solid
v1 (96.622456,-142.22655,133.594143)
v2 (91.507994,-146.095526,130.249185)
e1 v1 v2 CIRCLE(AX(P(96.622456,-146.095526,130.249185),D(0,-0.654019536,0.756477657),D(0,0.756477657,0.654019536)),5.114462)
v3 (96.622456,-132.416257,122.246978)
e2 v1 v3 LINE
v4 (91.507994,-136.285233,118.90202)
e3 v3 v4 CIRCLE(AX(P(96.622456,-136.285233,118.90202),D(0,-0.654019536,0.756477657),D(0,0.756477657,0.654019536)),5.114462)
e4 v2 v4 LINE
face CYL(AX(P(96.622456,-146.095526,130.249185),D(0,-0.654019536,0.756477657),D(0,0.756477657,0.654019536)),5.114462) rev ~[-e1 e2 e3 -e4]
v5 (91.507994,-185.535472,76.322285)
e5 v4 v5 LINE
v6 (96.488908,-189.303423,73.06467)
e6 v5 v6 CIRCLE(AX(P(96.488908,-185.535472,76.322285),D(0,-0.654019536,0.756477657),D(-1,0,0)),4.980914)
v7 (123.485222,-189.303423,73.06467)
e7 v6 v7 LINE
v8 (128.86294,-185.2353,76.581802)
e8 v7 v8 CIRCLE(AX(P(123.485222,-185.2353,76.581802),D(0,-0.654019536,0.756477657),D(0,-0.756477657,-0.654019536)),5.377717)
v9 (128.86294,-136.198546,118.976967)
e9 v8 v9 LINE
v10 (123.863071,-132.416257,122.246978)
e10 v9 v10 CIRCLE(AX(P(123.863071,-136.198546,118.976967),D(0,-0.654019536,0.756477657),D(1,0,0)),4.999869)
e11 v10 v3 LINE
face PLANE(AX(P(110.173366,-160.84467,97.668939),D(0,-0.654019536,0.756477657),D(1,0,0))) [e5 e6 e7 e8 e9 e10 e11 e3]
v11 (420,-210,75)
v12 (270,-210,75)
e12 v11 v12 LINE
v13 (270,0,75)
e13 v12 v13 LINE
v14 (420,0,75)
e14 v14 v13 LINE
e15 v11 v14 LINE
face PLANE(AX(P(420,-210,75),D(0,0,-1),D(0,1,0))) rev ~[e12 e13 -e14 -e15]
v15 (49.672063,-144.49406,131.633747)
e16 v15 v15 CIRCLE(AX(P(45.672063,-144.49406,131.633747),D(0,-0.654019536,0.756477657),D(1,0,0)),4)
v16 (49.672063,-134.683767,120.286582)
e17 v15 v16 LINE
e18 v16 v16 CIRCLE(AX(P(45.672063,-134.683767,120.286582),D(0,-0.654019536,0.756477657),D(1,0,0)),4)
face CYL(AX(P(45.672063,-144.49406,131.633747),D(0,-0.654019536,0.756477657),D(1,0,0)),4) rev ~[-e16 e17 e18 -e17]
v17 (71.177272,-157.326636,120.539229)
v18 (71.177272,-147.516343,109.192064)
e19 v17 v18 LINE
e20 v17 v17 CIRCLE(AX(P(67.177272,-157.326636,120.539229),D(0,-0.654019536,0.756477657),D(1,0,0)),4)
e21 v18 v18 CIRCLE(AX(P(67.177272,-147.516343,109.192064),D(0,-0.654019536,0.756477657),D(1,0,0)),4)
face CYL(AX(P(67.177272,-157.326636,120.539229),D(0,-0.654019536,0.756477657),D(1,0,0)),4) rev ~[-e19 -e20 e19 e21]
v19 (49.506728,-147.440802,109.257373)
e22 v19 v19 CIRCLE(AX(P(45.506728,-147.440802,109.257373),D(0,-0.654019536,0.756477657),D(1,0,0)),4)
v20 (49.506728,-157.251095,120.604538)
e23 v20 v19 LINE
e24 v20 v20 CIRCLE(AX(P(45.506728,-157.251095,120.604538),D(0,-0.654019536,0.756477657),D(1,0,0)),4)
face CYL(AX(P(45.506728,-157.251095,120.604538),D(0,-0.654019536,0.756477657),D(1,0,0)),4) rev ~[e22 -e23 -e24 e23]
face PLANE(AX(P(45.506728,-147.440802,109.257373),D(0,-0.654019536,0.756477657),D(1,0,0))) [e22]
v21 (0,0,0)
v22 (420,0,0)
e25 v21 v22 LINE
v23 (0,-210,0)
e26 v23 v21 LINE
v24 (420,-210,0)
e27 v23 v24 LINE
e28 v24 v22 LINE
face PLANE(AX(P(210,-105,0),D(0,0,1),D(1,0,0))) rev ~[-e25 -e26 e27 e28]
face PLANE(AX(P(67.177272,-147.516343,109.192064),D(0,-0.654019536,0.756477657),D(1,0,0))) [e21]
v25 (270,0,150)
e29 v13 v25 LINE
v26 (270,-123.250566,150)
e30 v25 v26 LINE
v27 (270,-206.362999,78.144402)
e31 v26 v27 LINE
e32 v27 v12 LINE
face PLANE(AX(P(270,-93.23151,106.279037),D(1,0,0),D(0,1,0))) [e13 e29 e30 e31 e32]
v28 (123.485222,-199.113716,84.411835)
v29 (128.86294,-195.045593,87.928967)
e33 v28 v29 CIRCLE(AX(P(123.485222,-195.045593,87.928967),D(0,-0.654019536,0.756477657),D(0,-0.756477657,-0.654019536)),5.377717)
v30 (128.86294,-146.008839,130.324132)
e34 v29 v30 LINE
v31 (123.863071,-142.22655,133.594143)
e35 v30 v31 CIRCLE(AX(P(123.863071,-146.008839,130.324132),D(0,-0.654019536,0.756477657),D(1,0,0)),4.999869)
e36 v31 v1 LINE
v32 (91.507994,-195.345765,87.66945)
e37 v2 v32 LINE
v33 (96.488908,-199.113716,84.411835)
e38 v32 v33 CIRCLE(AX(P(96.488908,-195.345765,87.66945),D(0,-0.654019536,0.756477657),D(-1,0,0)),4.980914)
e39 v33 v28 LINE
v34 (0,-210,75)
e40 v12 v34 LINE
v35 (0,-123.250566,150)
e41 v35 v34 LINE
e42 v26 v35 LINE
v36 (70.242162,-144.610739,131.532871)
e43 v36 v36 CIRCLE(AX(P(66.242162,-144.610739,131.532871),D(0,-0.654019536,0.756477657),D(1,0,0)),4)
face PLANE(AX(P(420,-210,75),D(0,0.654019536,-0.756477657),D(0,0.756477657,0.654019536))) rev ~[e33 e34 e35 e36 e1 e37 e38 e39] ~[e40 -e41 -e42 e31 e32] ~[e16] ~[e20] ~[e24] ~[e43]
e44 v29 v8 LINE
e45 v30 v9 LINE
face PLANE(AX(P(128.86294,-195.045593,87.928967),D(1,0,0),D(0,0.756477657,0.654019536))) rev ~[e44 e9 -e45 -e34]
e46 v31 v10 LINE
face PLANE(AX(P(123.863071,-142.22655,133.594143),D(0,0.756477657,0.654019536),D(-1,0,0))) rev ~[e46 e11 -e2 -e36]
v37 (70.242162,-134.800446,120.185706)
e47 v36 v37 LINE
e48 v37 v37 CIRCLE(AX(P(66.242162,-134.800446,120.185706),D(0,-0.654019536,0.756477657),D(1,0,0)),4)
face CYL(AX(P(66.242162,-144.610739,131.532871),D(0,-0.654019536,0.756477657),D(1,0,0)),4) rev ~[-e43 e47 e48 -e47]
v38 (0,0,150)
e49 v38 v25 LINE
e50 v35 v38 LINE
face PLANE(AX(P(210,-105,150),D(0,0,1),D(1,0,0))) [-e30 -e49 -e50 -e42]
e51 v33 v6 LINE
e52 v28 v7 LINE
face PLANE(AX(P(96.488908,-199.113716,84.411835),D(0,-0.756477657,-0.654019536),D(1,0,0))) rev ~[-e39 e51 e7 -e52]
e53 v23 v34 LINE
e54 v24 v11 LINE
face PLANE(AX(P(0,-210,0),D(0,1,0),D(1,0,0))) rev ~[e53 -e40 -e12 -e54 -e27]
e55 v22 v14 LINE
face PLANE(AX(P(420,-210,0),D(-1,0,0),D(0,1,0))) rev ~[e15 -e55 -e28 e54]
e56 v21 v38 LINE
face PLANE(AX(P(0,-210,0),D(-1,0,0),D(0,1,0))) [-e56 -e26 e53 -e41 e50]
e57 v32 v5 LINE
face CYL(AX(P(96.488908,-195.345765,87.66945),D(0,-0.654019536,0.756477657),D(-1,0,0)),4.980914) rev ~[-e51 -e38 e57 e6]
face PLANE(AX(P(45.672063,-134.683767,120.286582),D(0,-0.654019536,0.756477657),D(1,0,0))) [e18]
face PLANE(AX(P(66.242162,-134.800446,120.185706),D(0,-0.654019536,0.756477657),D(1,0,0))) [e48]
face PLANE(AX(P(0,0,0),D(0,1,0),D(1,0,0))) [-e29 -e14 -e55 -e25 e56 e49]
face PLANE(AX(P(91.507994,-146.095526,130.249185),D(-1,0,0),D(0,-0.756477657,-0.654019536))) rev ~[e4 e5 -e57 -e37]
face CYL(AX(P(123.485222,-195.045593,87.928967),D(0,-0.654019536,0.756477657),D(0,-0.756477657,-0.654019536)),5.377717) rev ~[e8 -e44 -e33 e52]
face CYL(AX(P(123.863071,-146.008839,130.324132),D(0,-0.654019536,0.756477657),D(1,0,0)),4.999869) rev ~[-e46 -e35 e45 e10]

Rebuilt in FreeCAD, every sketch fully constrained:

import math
import FreeCAD as App
import Part
import Sketcher
from FreeCAD import Vector

doc = App.newDocument("Part")
body = doc.addObject("PartDesign::Body", "Body")

# Sketch on XY plane
sketch1 = doc.addObject("Sketcher::SketchObject", "Sketch")
body.addObject(sketch1)
sketch1.AttachmentSupport = (doc.XY_Plane, [""])
sketch1.MapMode = "FlatFace"
sketch1.addGeometry([
    Part.LineSegment(Vector(0, 0, 0), Vector(0, -210, 0)),
    Part.LineSegment(Vector(0, -210, 0), Vector(420, -210, 0)),
    Part.LineSegment(Vector(420, -210, 0), Vector(420, 0, 0)),
    Part.LineSegment(Vector(420, 0, 0), Vector(0, 0, 0)),
], False)
sketch1.addConstraint([
    Sketcher.Constraint("Coincident", 0, 2, 1, 1),
    Sketcher.Constraint("Coincident", 1, 2, 2, 1),
    Sketcher.Constraint("Coincident", 2, 2, 3, 1),
    Sketcher.Constraint("Coincident", 3, 2, 0, 1),
    Sketcher.Constraint("Vertical", 0),
    Sketcher.Constraint("Horizontal", 1),
    Sketcher.Constraint("Vertical", 2),
    Sketcher.Constraint("Horizontal", 3),
    Sketcher.Constraint("Coincident", 3, 2, -1, 1),
    Sketcher.Constraint("DistanceX", 1, 1, 1, 2, 420.0),
    Sketcher.Constraint("DistanceY", 0, 2, 0, 1, 210.0),
])
pad1 = doc.addObject("PartDesign::Pad", "Pad")
body.addObject(pad1)
pad1.Profile = sketch1
pad1.Length = 150

# Sketch on YZ plane
sketch2 = doc.addObject("Sketcher::SketchObject", "Sketch001")
body.addObject(sketch2)
sketch2.AttachmentSupport = (doc.YZ_Plane, [""])
sketch2.MapMode = "FlatFace"
sketch2.AttachmentOffset = App.Placement(Vector(0, 0, 420), App.Rotation())
sketch2.addGeometry([
    Part.LineSegment(Vector(-210, 150, 0), Vector(-210, 75, 0)),
    Part.LineSegment(Vector(-210, 75, 0), Vector(-123.250566, 150, 0)),
    Part.LineSegment(Vector(-123.250566, 150, 0), Vector(-210, 150, 0)),
], False)
sketch2.addConstraint([
    Sketcher.Constraint("Coincident", 0, 2, 1, 1),
    Sketcher.Constraint("Coincident", 1, 2, 2, 1),
    Sketcher.Constraint("Coincident", 2, 2, 0, 1),
    Sketcher.Constraint("Vertical", 0),
    Sketcher.Constraint("Horizontal", 2),
    Sketcher.Constraint("DistanceY", 0, 2, 0, 1, 75.0),
    Sketcher.Constraint("DistanceX", 0, 2, -1, 1, 210.0),
    Sketcher.Constraint("DistanceY", -1, 1, 0, 2, 75.0),
    Sketcher.Constraint("DistanceX", 2, 2, 2, 1, 86.749434),
])
pocket1 = doc.addObject("PartDesign::Pocket", "Pocket")
body.addObject(pocket1)
pocket1.Profile = sketch2
pocket1.Type = "ThroughAll"

# Sketch on an angled plane
sketch3 = doc.addObject("Sketcher::SketchObject", "Sketch002")
body.addObject(sketch3)
sketch3.Placement = App.Placement(Vector(0, -126.932064, 146.817128), App.Rotation(Vector(1, 0, 0), Vector(0, 0.756477657, 0.654019536), Vector(0, -0.654019536, 0.756477657), "ZXY"))
sketch3.addGeometry([
    Part.Circle(Vector(45.672063, -23.215486, 0), Vector(0, 0, 1), 4),  # 0
    Part.Circle(Vector(66.242162, -23.369726, 0), Vector(0, 0, 1), 4),  # 1
    Part.Circle(Vector(67.177272, -40.179075, 0), Vector(0, 0, 1), 4),  # 2
    Part.Circle(Vector(45.506728, -40.079216, 0), Vector(0, 0, 1), 4),  # 3
    Part.LineSegment(Vector(123.863071, -20.218028, 0), Vector(96.622456, -20.218028, 0)),  # 4
    Part.ArcOfCircle(Part.Circle(Vector(96.622456, -25.33249, 0), Vector(0, 0, 1), 5.114462), math.radians(90), math.radians(180)),  # 5
    Part.LineSegment(Vector(91.507994, -25.33249, 0), Vector(91.507994, -90.437174, 0)),  # 6
    Part.ArcOfCircle(Part.Circle(Vector(96.488908, -90.437174, 0), Vector(0, 0, 1), 4.980914), math.radians(180), math.radians(270)),  # 7
    Part.LineSegment(Vector(96.488908, -95.418088, 0), Vector(123.485222, -95.418088, 0)),  # 8
    Part.ArcOfCircle(Part.Circle(Vector(123.485222, -90.040371, 0), Vector(0, 0, 1), 5.377717), math.radians(-90), math.radians(0)),  # 9
    Part.LineSegment(Vector(128.86294, -90.040371, 0), Vector(128.86294, -25.217896, 0)),  # 10
    Part.ArcOfCircle(Part.Circle(Vector(123.863071, -25.217896, 0), Vector(0, 0, 1), 4.999869), math.radians(0), math.radians(90)),  # 11
], False)
sketch3.addConstraint([
    Sketcher.Constraint("Tangent", 4, 2, 5, 1),
    Sketcher.Constraint("Tangent", 5, 2, 6, 1),
    Sketcher.Constraint("Tangent", 6, 2, 7, 1),
    Sketcher.Constraint("Tangent", 7, 2, 8, 1),
    Sketcher.Constraint("Tangent", 8, 2, 9, 1),
    Sketcher.Constraint("Tangent", 9, 2, 10, 1),
    Sketcher.Constraint("Tangent", 10, 2, 11, 1),
    Sketcher.Constraint("Tangent", 11, 2, 4, 1),
    Sketcher.Constraint("Horizontal", 4),
    Sketcher.Constraint("Vertical", 6),
    Sketcher.Constraint("Horizontal", 8),
    Sketcher.Constraint("Vertical", 10),
    Sketcher.Constraint("Equal", 0, 1),
    Sketcher.Constraint("Equal", 1, 2),
    Sketcher.Constraint("Equal", 2, 3),
    Sketcher.Constraint("Diameter", 0, 8.0),
    Sketcher.Constraint("Radius", 11, 4.999869),
    Sketcher.Constraint("Radius", 5, 5.114462),
    Sketcher.Constraint("Radius", 7, 4.980914),
    Sketcher.Constraint("Radius", 9, 5.377717),
    Sketcher.Constraint("DistanceX", 0, 3, 1, 3, 20.5701),
    Sketcher.Constraint("DistanceY", 7, 3, 2, 3, 50.258099),
    Sketcher.Constraint("DistanceX", 2, 3, 11, 3, 56.685799),
    Sketcher.Constraint("DistanceY", 1, 3, 4, 2, 3.151698),
    Sketcher.Constraint("DistanceY", 7, 2, 5, 3, 70.085598),
    Sketcher.Constraint("DistanceX", 4, 2, 4, 1, 27.240615),
    Sketcher.Constraint("DistanceX", -1, 1, 3, 3, 45.506728),
    Sketcher.Constraint("DistanceY", 5, 3, -1, 1, 25.33249),
    Sketcher.Constraint("DistanceX", -1, 1, 11, 3, 123.863071),
    Sketcher.Constraint("DistanceY", 1, 3, 0, 3, 0.15424),
    Sketcher.Constraint("DistanceX", 1, 3, 2, 3, 0.93511),
    Sketcher.Constraint("DistanceY", 3, 3, 0, 3, 16.86373),
])
pocket2 = doc.addObject("PartDesign::Pocket", "Pocket001")
body.addObject(pocket2)
pocket2.Profile = sketch3
pocket2.Length = 15

# Sketch on YZ plane
sketch4 = doc.addObject("Sketcher::SketchObject", "Sketch003")
body.addObject(sketch4)
sketch4.AttachmentSupport = (doc.YZ_Plane, [""])
sketch4.MapMode = "FlatFace"
sketch4.AttachmentOffset = App.Placement(Vector(0, 0, 420), App.Rotation())
sketch4.addGeometry([
    Part.LineSegment(Vector(-206.362999, 78.144402, 0), Vector(-210, 75, 0)),  # 0
    Part.LineSegment(Vector(-210, 75, 0), Vector(0, 75, 0)),  # 1
    Part.LineSegment(Vector(0, 75, 0), Vector(0, 150, 0)),  # 2
    Part.LineSegment(Vector(0, 150, 0), Vector(-123.250566, 150, 0)),  # 3
    Part.LineSegment(Vector(-123.250566, 150, 0), Vector(-206.362999, 78.144402, 0)),  # 4
], False)
sketch4.addConstraint([
    Sketcher.Constraint("Coincident", 0, 2, 1, 1),
    Sketcher.Constraint("Coincident", 1, 2, 2, 1),
    Sketcher.Constraint("Coincident", 2, 2, 3, 1),
    Sketcher.Constraint("Coincident", 3, 2, 4, 1),
    Sketcher.Constraint("Coincident", 4, 2, 0, 1),
    Sketcher.Constraint("Horizontal", 1),
    Sketcher.Constraint("Vertical", 2),
    Sketcher.Constraint("Horizontal", 3),
    Sketcher.Constraint("PointOnObject", 1, 2, -2),
    Sketcher.Constraint("Parallel", 0, 4),
    Sketcher.Constraint("DistanceX", 1, 1, 1, 2, 210.0),
    Sketcher.Constraint("DistanceY", 2, 1, 2, 2, 75.0),
    Sketcher.Constraint("DistanceY", -1, 1, 0, 2, 75.0),
    Sketcher.Constraint("DistanceX", 4, 2, -1, 1, 206.362999),
    Sketcher.Constraint("Distance", 0, 4.807811),
])
pocket3 = doc.addObject("PartDesign::Pocket", "Pocket002")
body.addObject(pocket3)
pocket3.Profile = sketch4
pocket3.Length = 150

doc.recompute()
